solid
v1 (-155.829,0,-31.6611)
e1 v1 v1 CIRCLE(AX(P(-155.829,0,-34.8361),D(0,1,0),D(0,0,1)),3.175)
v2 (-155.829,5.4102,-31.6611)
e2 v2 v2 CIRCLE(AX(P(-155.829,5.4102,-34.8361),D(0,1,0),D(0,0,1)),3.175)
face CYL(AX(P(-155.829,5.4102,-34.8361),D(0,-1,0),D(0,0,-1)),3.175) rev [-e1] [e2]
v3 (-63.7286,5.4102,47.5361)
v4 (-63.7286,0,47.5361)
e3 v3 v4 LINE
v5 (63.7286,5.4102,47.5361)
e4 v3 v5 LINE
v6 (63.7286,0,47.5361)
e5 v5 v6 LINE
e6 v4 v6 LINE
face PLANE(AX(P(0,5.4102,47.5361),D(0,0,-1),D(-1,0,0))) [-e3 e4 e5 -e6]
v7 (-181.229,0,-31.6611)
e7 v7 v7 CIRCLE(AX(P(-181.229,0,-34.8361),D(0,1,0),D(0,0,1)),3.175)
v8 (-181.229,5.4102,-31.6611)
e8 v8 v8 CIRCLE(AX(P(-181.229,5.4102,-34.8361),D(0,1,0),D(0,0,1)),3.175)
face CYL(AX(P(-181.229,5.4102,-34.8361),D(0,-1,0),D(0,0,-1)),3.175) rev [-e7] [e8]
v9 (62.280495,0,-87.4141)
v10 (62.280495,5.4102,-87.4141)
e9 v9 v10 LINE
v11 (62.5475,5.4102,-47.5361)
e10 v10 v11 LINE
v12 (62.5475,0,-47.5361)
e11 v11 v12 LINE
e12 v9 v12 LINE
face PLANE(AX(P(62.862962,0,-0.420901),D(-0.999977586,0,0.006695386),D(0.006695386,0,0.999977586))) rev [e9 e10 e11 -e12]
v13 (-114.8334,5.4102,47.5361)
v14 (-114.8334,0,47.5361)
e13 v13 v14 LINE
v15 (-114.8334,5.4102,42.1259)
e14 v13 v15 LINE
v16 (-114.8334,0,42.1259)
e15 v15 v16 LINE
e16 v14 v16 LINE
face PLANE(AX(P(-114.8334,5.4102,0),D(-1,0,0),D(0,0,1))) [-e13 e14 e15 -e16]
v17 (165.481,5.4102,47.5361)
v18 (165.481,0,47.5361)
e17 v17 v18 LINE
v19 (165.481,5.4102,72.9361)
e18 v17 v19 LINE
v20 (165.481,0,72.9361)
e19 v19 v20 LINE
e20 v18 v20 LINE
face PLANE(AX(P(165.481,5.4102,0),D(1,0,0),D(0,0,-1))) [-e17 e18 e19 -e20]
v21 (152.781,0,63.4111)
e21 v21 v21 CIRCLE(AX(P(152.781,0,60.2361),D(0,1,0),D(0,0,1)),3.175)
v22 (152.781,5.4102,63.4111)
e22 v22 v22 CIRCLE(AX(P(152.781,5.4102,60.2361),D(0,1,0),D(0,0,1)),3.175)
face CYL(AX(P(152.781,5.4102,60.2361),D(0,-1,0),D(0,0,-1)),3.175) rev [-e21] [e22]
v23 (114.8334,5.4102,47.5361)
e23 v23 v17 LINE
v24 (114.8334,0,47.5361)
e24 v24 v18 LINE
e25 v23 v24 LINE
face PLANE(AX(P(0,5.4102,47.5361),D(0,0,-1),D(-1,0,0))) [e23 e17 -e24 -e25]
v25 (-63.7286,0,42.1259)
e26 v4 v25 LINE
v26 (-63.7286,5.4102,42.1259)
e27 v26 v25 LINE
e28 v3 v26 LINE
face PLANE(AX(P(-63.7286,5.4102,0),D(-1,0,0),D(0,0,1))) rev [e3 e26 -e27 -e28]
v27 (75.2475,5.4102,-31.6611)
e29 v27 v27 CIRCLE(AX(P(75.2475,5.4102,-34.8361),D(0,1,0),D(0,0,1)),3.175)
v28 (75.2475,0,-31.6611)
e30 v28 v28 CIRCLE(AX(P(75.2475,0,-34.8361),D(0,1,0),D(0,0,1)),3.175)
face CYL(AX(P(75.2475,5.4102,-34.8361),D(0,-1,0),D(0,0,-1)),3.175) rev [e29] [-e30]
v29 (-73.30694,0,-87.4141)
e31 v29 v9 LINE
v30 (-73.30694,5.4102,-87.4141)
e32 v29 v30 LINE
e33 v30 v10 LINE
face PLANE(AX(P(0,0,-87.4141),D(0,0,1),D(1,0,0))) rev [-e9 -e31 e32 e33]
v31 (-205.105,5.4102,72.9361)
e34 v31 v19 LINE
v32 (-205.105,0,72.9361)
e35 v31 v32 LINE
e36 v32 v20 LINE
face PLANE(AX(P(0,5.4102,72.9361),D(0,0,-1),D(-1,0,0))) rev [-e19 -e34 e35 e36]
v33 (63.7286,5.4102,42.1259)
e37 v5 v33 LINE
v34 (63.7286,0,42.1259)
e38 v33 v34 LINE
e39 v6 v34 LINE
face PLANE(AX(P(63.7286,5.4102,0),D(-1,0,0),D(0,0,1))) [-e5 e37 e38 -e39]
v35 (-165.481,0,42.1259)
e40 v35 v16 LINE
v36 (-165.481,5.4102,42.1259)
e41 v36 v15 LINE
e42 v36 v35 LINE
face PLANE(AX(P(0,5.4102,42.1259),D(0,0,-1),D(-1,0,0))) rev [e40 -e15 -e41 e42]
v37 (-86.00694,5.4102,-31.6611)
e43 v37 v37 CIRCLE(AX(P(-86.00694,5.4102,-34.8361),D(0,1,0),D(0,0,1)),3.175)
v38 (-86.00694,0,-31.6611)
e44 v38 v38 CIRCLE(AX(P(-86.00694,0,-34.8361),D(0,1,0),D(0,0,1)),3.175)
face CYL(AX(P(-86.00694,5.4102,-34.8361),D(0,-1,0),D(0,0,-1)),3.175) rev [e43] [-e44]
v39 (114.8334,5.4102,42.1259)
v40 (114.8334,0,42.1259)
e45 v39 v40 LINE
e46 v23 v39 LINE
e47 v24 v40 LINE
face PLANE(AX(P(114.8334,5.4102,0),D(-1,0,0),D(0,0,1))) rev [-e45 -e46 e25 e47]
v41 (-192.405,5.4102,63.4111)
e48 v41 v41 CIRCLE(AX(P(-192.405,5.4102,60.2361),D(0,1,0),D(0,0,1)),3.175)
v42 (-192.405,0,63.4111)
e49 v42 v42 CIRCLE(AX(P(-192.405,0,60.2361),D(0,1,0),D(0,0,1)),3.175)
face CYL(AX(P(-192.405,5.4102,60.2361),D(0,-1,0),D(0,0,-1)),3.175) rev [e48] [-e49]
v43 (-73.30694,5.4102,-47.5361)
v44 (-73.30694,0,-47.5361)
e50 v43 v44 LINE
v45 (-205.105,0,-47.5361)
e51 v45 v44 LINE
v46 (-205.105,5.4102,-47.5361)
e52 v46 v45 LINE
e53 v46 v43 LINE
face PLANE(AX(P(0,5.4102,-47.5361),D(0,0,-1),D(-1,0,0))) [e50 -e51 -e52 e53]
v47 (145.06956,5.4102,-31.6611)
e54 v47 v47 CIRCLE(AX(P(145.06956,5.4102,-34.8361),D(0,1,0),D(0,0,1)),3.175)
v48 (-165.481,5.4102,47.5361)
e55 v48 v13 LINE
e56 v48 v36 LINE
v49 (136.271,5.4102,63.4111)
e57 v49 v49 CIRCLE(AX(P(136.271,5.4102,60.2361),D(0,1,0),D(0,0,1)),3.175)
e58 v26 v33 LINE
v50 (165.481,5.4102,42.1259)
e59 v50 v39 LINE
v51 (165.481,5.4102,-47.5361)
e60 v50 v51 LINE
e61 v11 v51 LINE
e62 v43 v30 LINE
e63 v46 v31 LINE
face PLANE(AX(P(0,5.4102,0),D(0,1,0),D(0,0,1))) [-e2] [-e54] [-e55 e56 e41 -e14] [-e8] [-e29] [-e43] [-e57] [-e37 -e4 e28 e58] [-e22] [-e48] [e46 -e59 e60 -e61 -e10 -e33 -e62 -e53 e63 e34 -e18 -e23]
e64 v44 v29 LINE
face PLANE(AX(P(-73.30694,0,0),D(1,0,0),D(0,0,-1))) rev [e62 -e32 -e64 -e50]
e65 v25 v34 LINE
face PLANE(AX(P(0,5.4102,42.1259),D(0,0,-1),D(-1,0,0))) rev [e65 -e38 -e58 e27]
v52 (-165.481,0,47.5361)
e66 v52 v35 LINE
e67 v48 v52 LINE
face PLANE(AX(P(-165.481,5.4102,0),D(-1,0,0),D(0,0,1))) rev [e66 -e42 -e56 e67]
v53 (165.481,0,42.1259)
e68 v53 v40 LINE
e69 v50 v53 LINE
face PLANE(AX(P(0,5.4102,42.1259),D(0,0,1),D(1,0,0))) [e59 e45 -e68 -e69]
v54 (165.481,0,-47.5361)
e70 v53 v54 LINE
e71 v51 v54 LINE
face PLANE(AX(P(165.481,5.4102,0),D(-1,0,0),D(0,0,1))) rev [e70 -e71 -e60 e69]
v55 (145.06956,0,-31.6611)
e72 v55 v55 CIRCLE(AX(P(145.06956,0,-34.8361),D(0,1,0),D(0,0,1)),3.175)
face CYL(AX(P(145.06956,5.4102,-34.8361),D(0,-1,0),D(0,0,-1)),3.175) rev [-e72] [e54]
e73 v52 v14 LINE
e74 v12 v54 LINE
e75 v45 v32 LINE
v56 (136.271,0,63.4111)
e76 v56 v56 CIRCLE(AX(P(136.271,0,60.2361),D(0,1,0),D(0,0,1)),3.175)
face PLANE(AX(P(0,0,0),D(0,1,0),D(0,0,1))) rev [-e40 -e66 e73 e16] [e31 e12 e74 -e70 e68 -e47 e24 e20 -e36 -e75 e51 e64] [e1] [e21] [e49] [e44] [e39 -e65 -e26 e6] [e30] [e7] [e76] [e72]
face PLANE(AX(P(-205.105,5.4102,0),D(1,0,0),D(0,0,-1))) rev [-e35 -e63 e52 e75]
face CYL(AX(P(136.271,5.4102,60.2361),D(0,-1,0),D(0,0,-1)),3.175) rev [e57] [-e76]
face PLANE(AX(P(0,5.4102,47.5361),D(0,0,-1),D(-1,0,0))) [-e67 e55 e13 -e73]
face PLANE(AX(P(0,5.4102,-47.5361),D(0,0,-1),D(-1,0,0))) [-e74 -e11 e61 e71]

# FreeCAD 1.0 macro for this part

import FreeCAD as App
import Part
import Sketcher

V = App.Vector
Q = App.Units.Quantity


def add_polygon(sketch, points):
    """Adds a closed chain of lines whose ends are joined by coincident constraints."""
    first, n = sketch.GeometryCount, len(points)
    for a, b in zip(points, points[1:] + points[:1]):
        sketch.addGeometry(Part.LineSegment(App.Vector(*a, 0), App.Vector(*b, 0)), False)
    for i in range(n):
        sketch.addConstraint(Sketcher.Constraint("Coincident", first + i, 2, first + (i + 1) % n, 1))

doc = App.newDocument("Part")
body = doc.addObject("PartDesign::Body", "Body")

sketch1 = doc.addObject("Sketcher::SketchObject", "Sketch")
body.addObject(sketch1)
sketch1.AttachmentSupport = (doc.XZ_Plane, [""])
sketch1.MapMode = "FlatFace"
add_polygon(sketch1, [(-205.105, -47.5361), (-205.105, 72.9361), (165.481, 72.9361), (165.481, 47.5361), (114.8334, 47.5361), (114.8334, 42.1259), (165.481, 42.1259), (165.481, -47.5361), (62.5475, -47.5361), (62.5475, 42.1259), (63.7286, 42.1259), (63.7286, 47.5361), (-63.7286, 47.5361), (-63.7286, 42.1259), (-73.30694, 42.1259), (-73.30694, -47.5361)])
sketch1.addGeometry(Part.Circle(V(-192.405, 60.2361, 0), V(0, 0, 1), 3.175), False)
add_polygon(sketch1, [(-114.8334, 47.5361), (-165.481, 47.5361), (-165.481, 42.1259), (-114.8334, 42.1259)])
sketch1.addGeometry(Part.Circle(V(136.271, 60.2361, 0), V(0, 0, 1), 3.175), False)
sketch1.addGeometry(Part.Circle(V(152.781, 60.2361, 0), V(0, 0, 1), 3.175), False)
sketch1.addGeometry(Part.Circle(V(-181.229, -34.8361, 0), V(0, 0, 1), 3.175), False)
sketch1.addGeometry(Part.Circle(V(-155.829, -34.8361, 0), V(0, 0, 1), 3.175), False)
sketch1.addGeometry(Part.Circle(V(-86.00694, -34.8361, 0), V(0, 0, 1), 3.175), False)
sketch1.addGeometry(Part.Circle(V(75.2475, -34.8361, 0), V(0, 0, 1), 3.175), False)
sketch1.addGeometry(Part.Circle(V(145.06956, -34.8361, 0), V(0, 0, 1), 3.175), False)
sketch1.addConstraint([
    Sketcher.Constraint("Vertical", 0),
    Sketcher.Constraint("Horizontal", 1),
    Sketcher.Constraint("Vertical", 2),
    Sketcher.Constraint("Horizontal", 3),
    Sketcher.Constraint("Vertical", 4),
    Sketcher.Constraint("Horizontal", 5),
    Sketcher.Constraint("Vertical", 6),
    Sketcher.Constraint("Horizontal", 7),
    Sketcher.Constraint("Vertical", 8),
    Sketcher.Constraint("Horizontal", 9),
    Sketcher.Constraint("Vertical", 10),
    Sketcher.Constraint("Horizontal", 11),
    Sketcher.Constraint("Vertical", 12),
    Sketcher.Constraint("Horizontal", 13),
    Sketcher.Constraint("Vertical", 14),
    Sketcher.Constraint("Horizontal", 15),
    Sketcher.Constraint("Horizontal", 17),
    Sketcher.Constraint("Vertical", 18),
    Sketcher.Constraint("Horizontal", 19),
    Sketcher.Constraint("Vertical", 20),
    Sketcher.Constraint("Equal", 16, 21),
    Sketcher.Constraint("Equal", 21, 22),
    Sketcher.Constraint("Equal", 22, 23),
    Sketcher.Constraint("Equal", 23, 24),
    Sketcher.Constraint("Equal", 24, 25),
    Sketcher.Constraint("Equal", 25, 26),
    Sketcher.Constraint("Equal", 26, 27),
    Sketcher.Constraint("Symmetric", 6, 2, 17, 2, -1, 1),
    Sketcher.Constraint("Symmetric", 9, 2, 12, 2, -2),
    Sketcher.Constraint("Symmetric", 2, 2, 17, 2, -2),
    Sketcher.Constraint("Symmetric", 4, 2, 19, 2, -2),
    Sketcher.Constraint("Horizontal", 16, 3, 21, 3),
    Sketcher.Constraint("Horizontal", 21, 3, 22, 3),
    Sketcher.Constraint("Horizontal", 23, 3, 24, 3),
    Sketcher.Constraint("Horizontal", 24, 3, 25, 3),
    Sketcher.Constraint("Horizontal", 25, 3, 26, 3),
    Sketcher.Constraint("Horizontal", 26, 3, 27, 3),
    Sketcher.Constraint("Horizontal", 5, 2, 8, 2),
    Sketcher.Constraint("Horizontal", 3, 2, 10, 2),
    Sketcher.Constraint("Horizontal", 7, 2, 14, 2),
    Sketcher.Constraint("Diameter", 16, Q("0.25 in")),
    Sketcher.Constraint("DistanceY", 2, 2, 2, 1, Q("1 in")),
    Sketcher.Constraint("DistanceX", 23, 3, 24, 3, Q("1 in")),
    Sketcher.Constraint("DistanceX", 1, 1, 1, 2, Q("14.59 in")),
    Sketcher.Constraint("DistanceY", 6, 2, 6, 1, Q("3.53 in")),
    Sketcher.Constraint("DistanceX", 23, 3, 21, 3, Q("12.5 in")),
    Sketcher.Constraint("DistanceX", 0, 2, 16, 3, Q("0.5 in")),
    Sketcher.Constraint("DistanceY", 16, 3, 0, 2, Q("0.5 in")),
    Sketcher.Constraint("DistanceX", 22, 3, 1, 2, Q("0.5 in")),
    Sketcher.Constraint("DistanceY", 6, 2, 27, 3, Q("0.5 in")),
    Sketcher.Constraint("DistanceX", 7, 2, 26, 3, Q("0.5 in")),
    Sketcher.Constraint("DistanceX", 25, 3, 13, 2, Q("0.5 in")),
    Sketcher.Constraint("DistanceX", 3, 2, 3, 1, Q("1.994 in")),
    Sketcher.Constraint("DistanceX", 11, 2, 11, 1, Q("5.018 in")),
    Sketcher.Constraint("DistanceY", 0, 1, 0, 2, Q("4.743 in")),
    Sketcher.Constraint("DistanceX", 16, 3, 21, 3, Q("12.94 in")),
    Sketcher.Constraint("DistanceX", 16, 3, 17, 2, Q("1.06 in")),
    Sketcher.Constraint("DistanceX", 7, 2, 7, 1, Q("4.0525 in")),
    Sketcher.Constraint("DistanceX", 13, 2, 13, 1, Q("0.3771 in")),
    Sketcher.Constraint("DistanceX", -1, 1, 27, 3, Q("5.7114 in")),
])
pad1 = doc.addObject("PartDesign::Pad", "Pad")
body.addObject(pad1)
pad1.Profile = sketch1
pad1.Length = Q("0.213 in")
pad1.Reversed = True

sketch2 = doc.addObject("Sketcher::SketchObject", "Sketch001")
body.addObject(sketch2)
sketch2.AttachmentSupport = (doc.XZ_Plane, [""])
sketch2.MapMode = "FlatFace"
sketch2.AttachmentOffset = App.Placement(V(0, 0, -0.213 * 25.4), App.Rotation())
add_polygon(sketch2, [(62.5475, 42.1259), (62.5475, -47.5361), (62.280495, -87.4141), (-73.30694, -87.4141), (-73.30694, 42.1259)])
sketch2.addConstraint([
    Sketcher.Constraint("Vertical", 0),
    Sketcher.Constraint("Horizontal", 2),
    Sketcher.Constraint("Vertical", 3),
    Sketcher.Constraint("Horizontal", 4),
    Sketcher.Constraint("DistanceY", 3, 1, 3, 2, Q("5.1 in")),
    Sketcher.Constraint("DistanceY", 0, 2, 0, 1, Q("3.53 in")),
    Sketcher.Constraint("DistanceX", 4, 1, 4, 2, Q("5.3486 in")),
    Sketcher.Constraint("DistanceX", -1, 1, 0, 2, Q("2.4625 in")),
    Sketcher.Constraint("DistanceY", 0, 2, -1, 1, Q("1.8715 in")),
    Sketcher.Constraint("DistanceX", 2, 2, 2, 1, 135.587435),
])
pad2 = doc.addObject("PartDesign::Pad", "Pad001")
body.addObject(pad2)
pad2.Profile = sketch2
pad2.Length = Q("0.213 in")

doc.recompute()
